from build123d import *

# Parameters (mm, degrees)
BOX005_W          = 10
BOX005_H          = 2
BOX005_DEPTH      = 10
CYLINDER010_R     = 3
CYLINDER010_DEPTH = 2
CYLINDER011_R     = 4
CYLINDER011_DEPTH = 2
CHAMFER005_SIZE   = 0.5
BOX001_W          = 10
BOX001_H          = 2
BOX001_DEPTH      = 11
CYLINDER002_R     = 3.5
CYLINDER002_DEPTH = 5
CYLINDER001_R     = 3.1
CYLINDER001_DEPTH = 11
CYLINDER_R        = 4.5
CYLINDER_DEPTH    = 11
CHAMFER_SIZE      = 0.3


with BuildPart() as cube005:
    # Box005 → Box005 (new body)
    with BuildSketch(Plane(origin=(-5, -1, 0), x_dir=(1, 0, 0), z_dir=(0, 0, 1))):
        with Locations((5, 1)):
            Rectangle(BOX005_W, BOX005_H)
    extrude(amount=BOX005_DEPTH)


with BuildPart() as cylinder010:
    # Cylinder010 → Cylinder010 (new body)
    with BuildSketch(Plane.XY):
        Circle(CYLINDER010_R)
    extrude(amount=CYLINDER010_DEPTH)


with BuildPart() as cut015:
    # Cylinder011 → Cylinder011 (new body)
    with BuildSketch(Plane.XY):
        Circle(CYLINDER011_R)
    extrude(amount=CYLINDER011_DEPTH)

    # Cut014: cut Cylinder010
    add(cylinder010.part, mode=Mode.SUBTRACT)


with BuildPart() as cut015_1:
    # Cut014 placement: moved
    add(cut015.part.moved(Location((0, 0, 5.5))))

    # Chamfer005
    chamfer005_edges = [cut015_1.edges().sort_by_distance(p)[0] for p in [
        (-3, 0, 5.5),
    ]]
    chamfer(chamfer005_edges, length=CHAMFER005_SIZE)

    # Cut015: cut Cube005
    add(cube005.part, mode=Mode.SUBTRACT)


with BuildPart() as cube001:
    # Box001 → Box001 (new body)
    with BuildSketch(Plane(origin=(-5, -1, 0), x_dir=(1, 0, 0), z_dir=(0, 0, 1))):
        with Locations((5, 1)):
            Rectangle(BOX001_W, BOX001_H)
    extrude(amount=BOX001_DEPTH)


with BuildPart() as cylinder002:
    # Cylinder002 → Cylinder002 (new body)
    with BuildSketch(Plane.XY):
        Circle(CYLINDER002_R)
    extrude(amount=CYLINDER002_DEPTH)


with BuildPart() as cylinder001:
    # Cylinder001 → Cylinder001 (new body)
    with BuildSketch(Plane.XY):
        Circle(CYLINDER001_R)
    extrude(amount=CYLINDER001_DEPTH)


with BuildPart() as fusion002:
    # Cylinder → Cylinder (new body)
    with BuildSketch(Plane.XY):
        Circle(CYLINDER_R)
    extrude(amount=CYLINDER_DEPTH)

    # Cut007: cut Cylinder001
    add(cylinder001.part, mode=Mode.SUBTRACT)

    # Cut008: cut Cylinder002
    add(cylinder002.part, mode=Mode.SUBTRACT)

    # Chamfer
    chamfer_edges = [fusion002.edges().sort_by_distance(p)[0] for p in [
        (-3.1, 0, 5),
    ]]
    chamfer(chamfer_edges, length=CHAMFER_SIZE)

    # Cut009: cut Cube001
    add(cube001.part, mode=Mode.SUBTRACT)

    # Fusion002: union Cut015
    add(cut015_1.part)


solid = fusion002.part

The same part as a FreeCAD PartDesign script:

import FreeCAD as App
import Part
import Sketcher
from FreeCAD import Vector
Q = App.Units.Quantity


def edges_at(feature, points):
    """Names of the edges that pass closest to the given points."""
    edges = feature.Shape.Edges
    near = lambda p: min(range(len(edges)), key=lambda i: edges[i].distToShape(Part.Vertex(*p))[0])
    return sorted({f"Edge{near(p) + 1}" for p in points})

doc = App.newDocument("Part")
body = doc.addObject("PartDesign::Body", "Body")

# Sketch on XY plane
sketch1 = body.newObject("Sketcher::SketchObject", "Sketch")
sketch1.AttachmentSupport = (doc.getObject("XY_Plane"), [""])
sketch1.MapMode = "FlatFace"
sketch1.addGeometry([
    Part.LineSegment(Vector(-5, 1, 0), Vector(-5, -1, 0)),
    Part.LineSegment(Vector(-5, -1, 0), Vector(5, -1, 0)),
    Part.LineSegment(Vector(5, -1, 0), Vector(5, 1, 0)),
    Part.LineSegment(Vector(5, 1, 0), Vector(-5, 1, 0)),
], False)
sketch1.addConstraint([
    Sketcher.Constraint("Coincident", 0, 2, 1, 1),
    Sketcher.Constraint("Coincident", 1, 2, 2, 1),
    Sketcher.Constraint("Coincident", 2, 2, 3, 1),
    Sketcher.Constraint("Coincident", 3, 2, 0, 1),
    Sketcher.Constraint("Vertical", 0),
    Sketcher.Constraint("Horizontal", 1),
    Sketcher.Constraint("Vertical", 2),
    Sketcher.Constraint("Horizontal", 3),
    Sketcher.Constraint("Symmetric", 0, 2, 2, 2, -1, 1),
    Sketcher.Constraint("DistanceX", 1, 1, 1, 2, Q("10 mm")),
    Sketcher.Constraint("DistanceY", 0, 2, 0, 1, Q("2 mm")),
])
pad1 = body.newObject("PartDesign::Pad", "Pad")
pad1.Profile = sketch1
pad1.Length = 10
body2 = doc.addObject("PartDesign::Body", "Body001")

# Sketch on XY plane
sketch2 = body2.newObject("Sketcher::SketchObject", "Sketch001")
sketch2.AttachmentSupport = (doc.getObject("XY_Plane001"), [""])
sketch2.MapMode = "FlatFace"
sketch2.addGeometry(Part.Circle(Vector(0, 0, 0), Vector(0, 0, 1), 3), False)
sketch2.addConstraint([
    Sketcher.Constraint("Coincident", 0, 3, -1, 1),
    Sketcher.Constraint("Diameter", 0, Q("6 mm")),
])
pad2 = body2.newObject("PartDesign::Pad", "Pad001")
pad2.Profile = sketch2
pad2.Length = 2
body3 = doc.addObject("PartDesign::Body", "Body002")

# Sketch on XY plane
sketch3 = body3.newObject("Sketcher::SketchObject", "Sketch002")
sketch3.AttachmentSupport = (doc.getObject("XY_Plane002"), [""])
sketch3.MapMode = "FlatFace"
sketch3.addGeometry(Part.Circle(Vector(0, 0, 0), Vector(0, 0, 1), 4), False)
sketch3.addConstraint([
    Sketcher.Constraint("Coincident", 0, 3, -1, 1),
    Sketcher.Constraint("Diameter", 0, Q("8 mm")),
])
pad3 = body3.newObject("PartDesign::Pad", "Pad002")
pad3.Profile = sketch3
pad3.Length = 2
doc.recompute()

boolean = body3.newObject("PartDesign::Boolean", "Boolean")
boolean.Type = "Cut"
boolean.addObjects([body2])
body4 = doc.addObject("PartDesign::Body", "Body003")
body4.AllowCompound = True
doc.recompute()

body3.Placement = App.Placement(Vector(0, 0, 5.5), App.Rotation(Vector(0, 0, 1), 0))
boolean2 = body4.newObject("PartDesign::Boolean", "Boolean001")
boolean2.Type = "Fuse"
boolean2.addObjects([body3])
doc.recompute()

chamfer = body4.newObject("PartDesign::Chamfer", "Chamfer")
chamfer.Base = (boolean2, edges_at(boolean2, [(-3, 0, 5.5)]))
chamfer.Size = 0.5
doc.recompute()

boolean3 = body4.newObject("PartDesign::Boolean", "Boolean002")
boolean3.Type = "Cut"
boolean3.addObjects([body])
body5 = doc.addObject("PartDesign::Body", "Body004")

# Sketch on XY plane
sketch4 = body5.newObject("Sketcher::SketchObject", "Sketch003")
sketch4.AttachmentSupport = (doc.getObject("XY_Plane004"), [""])
sketch4.MapMode = "FlatFace"
sketch4.addGeometry([
    Part.LineSegment(Vector(-5, 1, 0), Vector(-5, -1, 0)),
    Part.LineSegment(Vector(-5, -1, 0), Vector(5, -1, 0)),
    Part.LineSegment(Vector(5, -1, 0), Vector(5, 1, 0)),
    Part.LineSegment(Vector(5, 1, 0), Vector(-5, 1, 0)),
], False)
sketch4.addConstraint([
    Sketcher.Constraint("Coincident", 0, 2, 1, 1),
    Sketcher.Constraint("Coincident", 1, 2, 2, 1),
    Sketcher.Constraint("Coincident", 2, 2, 3, 1),
    Sketcher.Constraint("Coincident", 3, 2, 0, 1),
    Sketcher.Constraint("Vertical", 0),
    Sketcher.Constraint("Horizontal", 1),
    Sketcher.Constraint("Vertical", 2),
    Sketcher.Constraint("Horizontal", 3),
    Sketcher.Constraint("Symmetric", 0, 2, 2, 2, -1, 1),
    Sketcher.Constraint("DistanceX", 1, 1, 1, 2, Q("10 mm")),
    Sketcher.Constraint("DistanceY", 0, 2, 0, 1, Q("2 mm")),
])
pad4 = body5.newObject("PartDesign::Pad", "Pad003")
pad4.Profile = sketch4
pad4.Length = 11
body6 = doc.addObject("PartDesign::Body", "Body005")

# Sketch on XY plane
sketch5 = body6.newObject("Sketcher::SketchObject", "Sketch004")
sketch5.AttachmentSupport = (doc.getObject("XY_Plane005"), [""])
sketch5.MapMode = "FlatFace"
sketch5.addGeometry(Part.Circle(Vector(0, 0, 0), Vector(0, 0, 1), 3.5), False)
sketch5.addConstraint([
    Sketcher.Constraint("Coincident", 0, 3, -1, 1),
    Sketcher.Constraint("Diameter", 0, Q("7 mm")),
])
pad5 = body6.newObject("PartDesign::Pad", "Pad004")
pad5.Profile = sketch5
pad5.Length = 5
body7 = doc.addObject("PartDesign::Body", "Body006")

# Sketch on XY plane
sketch6 = body7.newObject("Sketcher::SketchObject", "Sketch005")
sketch6.AttachmentSupport = (doc.getObject("XY_Plane006"), [""])
sketch6.MapMode = "FlatFace"
sketch6.addGeometry(Part.Circle(Vector(0, 0, 0), Vector(0, 0, 1), 3.1), False)
sketch6.addConstraint([
    Sketcher.Constraint("Coincident", 0, 3, -1, 1),
    Sketcher.Constraint("Diameter", 0, Q("6.2 mm")),
])
pad6 = body7.newObject("PartDesign::Pad", "Pad005")
pad6.Profile = sketch6
pad6.Length = 11
body8 = doc.addObject("PartDesign::Body", "Body007")
body8.AllowCompound = True

# Sketch on XY plane
sketch7 = body8.newObject("Sketcher::SketchObject", "Sketch006")
sketch7.AttachmentSupport = (doc.getObject("XY_Plane007"), [""])
sketch7.MapMode = "FlatFace"
sketch7.addGeometry(Part.Circle(Vector(0, 0, 0), Vector(0, 0, 1), 4.5), False)
sketch7.addConstraint([
    Sketcher.Constraint("Coincident", 0, 3, -1, 1),
    Sketcher.Constraint("Diameter", 0, Q("9 mm")),
])
pad7 = body8.newObject("PartDesign::Pad", "Pad006")
pad7.Profile = sketch7
pad7.Length = 11
doc.recompute()

boolean4 = body8.newObject("PartDesign::Boolean", "Boolean003")
boolean4.Type = "Cut"
boolean4.addObjects([body7])
doc.recompute()

boolean5 = body8.newObject("PartDesign::Boolean", "Boolean004")
boolean5.Type = "Cut"
boolean5.addObjects([body6])
doc.recompute()

chamfer2 = body8.newObject("PartDesign::Chamfer", "Chamfer001")
chamfer2.Base = (boolean5, edges_at(boolean5, [(-3.1, 0, 5)]))
chamfer2.Size = 0.3
doc.recompute()

boolean6 = body8.newObject("PartDesign::Boolean", "Boolean005")
boolean6.Type = "Cut"
boolean6.addObjects([body5])
doc.recompute()

boolean7 = body8.newObject("PartDesign::Boolean", "Boolean006")
boolean7.Type = "Fuse"
boolean7.addObjects([body4])

doc.recompute()
